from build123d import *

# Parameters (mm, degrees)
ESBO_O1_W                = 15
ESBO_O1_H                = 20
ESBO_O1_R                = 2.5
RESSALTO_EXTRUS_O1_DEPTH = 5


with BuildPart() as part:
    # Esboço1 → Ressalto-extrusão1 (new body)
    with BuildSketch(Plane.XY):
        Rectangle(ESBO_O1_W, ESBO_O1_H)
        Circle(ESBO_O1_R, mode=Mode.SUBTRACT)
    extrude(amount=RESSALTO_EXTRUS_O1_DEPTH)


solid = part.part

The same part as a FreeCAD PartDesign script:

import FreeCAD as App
import Part
import Sketcher
from FreeCAD import Vector

doc = App.newDocument("Part")
body = doc.addObject("PartDesign::Body", "Body")

# Sketch on XY plane
sketch1 = doc.addObject("Sketcher::SketchObject", "Sketch")
body.addObject(sketch1)
sketch1.AttachmentSupport = (doc.XY_Plane, [""])
sketch1.MapMode = "FlatFace"
sketch1.addGeometry(Part.LineSegment(Vector(-7.5, 10, 0), Vector(-7.5, -10, 0)), False)
sketch1.addGeometry(Part.LineSegment(Vector(-7.5, -10, 0), Vector(7.5, -10, 0)), False)
sketch1.addGeometry(Part.LineSegment(Vector(7.5, -10, 0), Vector(7.5, 10, 0)), False)
sketch1.addGeometry(Part.LineSegment(Vector(7.5, 10, 0), Vector(-7.5, 10, 0)), False)
sketch1.addGeometry(Part.Circle(Vector(0, 0, 0), Vector(0, 0, 1), 2.5), False)
sketch1.addConstraint(Sketcher.Constraint("Coincident", 0, 2, 1, 1))
sketch1.addConstraint(Sketcher.Constraint("Coincident", 1, 2, 2, 1))
sketch1.addConstraint(Sketcher.Constraint("Coincident", 2, 2, 3, 1))
sketch1.addConstraint(Sketcher.Constraint("Coincident", 3, 2, 0, 1))
sketch1.addConstraint(Sketcher.Constraint("Vertical", 0))
sketch1.addConstraint(Sketcher.Constraint("Horizontal", 1))
sketch1.addConstraint(Sketcher.Constraint("Vertical", 2))
sketch1.addConstraint(Sketcher.Constraint("Horizontal", 3))
sketch1.addConstraint(Sketcher.Constraint("Coincident", 4, 3, -1, 1))
sketch1.addConstraint(Sketcher.Constraint("Symmetric", 0, 2, 2, 2, -1, 1))
sketch1.addConstraint(Sketcher.Constraint("Diameter", 4, 5.0))
sketch1.addConstraint(Sketcher.Constraint("DistanceX", 1, 1, 1, 2, 15.0))
sketch1.addConstraint(Sketcher.Constraint("DistanceY", 0, 2, 0, 1, 20.0))
pad1 = doc.addObject("PartDesign::Pad", "Pad")
body.addObject(pad1)
pad1.Profile = sketch1
pad1.Length = 5

doc.recompute()
